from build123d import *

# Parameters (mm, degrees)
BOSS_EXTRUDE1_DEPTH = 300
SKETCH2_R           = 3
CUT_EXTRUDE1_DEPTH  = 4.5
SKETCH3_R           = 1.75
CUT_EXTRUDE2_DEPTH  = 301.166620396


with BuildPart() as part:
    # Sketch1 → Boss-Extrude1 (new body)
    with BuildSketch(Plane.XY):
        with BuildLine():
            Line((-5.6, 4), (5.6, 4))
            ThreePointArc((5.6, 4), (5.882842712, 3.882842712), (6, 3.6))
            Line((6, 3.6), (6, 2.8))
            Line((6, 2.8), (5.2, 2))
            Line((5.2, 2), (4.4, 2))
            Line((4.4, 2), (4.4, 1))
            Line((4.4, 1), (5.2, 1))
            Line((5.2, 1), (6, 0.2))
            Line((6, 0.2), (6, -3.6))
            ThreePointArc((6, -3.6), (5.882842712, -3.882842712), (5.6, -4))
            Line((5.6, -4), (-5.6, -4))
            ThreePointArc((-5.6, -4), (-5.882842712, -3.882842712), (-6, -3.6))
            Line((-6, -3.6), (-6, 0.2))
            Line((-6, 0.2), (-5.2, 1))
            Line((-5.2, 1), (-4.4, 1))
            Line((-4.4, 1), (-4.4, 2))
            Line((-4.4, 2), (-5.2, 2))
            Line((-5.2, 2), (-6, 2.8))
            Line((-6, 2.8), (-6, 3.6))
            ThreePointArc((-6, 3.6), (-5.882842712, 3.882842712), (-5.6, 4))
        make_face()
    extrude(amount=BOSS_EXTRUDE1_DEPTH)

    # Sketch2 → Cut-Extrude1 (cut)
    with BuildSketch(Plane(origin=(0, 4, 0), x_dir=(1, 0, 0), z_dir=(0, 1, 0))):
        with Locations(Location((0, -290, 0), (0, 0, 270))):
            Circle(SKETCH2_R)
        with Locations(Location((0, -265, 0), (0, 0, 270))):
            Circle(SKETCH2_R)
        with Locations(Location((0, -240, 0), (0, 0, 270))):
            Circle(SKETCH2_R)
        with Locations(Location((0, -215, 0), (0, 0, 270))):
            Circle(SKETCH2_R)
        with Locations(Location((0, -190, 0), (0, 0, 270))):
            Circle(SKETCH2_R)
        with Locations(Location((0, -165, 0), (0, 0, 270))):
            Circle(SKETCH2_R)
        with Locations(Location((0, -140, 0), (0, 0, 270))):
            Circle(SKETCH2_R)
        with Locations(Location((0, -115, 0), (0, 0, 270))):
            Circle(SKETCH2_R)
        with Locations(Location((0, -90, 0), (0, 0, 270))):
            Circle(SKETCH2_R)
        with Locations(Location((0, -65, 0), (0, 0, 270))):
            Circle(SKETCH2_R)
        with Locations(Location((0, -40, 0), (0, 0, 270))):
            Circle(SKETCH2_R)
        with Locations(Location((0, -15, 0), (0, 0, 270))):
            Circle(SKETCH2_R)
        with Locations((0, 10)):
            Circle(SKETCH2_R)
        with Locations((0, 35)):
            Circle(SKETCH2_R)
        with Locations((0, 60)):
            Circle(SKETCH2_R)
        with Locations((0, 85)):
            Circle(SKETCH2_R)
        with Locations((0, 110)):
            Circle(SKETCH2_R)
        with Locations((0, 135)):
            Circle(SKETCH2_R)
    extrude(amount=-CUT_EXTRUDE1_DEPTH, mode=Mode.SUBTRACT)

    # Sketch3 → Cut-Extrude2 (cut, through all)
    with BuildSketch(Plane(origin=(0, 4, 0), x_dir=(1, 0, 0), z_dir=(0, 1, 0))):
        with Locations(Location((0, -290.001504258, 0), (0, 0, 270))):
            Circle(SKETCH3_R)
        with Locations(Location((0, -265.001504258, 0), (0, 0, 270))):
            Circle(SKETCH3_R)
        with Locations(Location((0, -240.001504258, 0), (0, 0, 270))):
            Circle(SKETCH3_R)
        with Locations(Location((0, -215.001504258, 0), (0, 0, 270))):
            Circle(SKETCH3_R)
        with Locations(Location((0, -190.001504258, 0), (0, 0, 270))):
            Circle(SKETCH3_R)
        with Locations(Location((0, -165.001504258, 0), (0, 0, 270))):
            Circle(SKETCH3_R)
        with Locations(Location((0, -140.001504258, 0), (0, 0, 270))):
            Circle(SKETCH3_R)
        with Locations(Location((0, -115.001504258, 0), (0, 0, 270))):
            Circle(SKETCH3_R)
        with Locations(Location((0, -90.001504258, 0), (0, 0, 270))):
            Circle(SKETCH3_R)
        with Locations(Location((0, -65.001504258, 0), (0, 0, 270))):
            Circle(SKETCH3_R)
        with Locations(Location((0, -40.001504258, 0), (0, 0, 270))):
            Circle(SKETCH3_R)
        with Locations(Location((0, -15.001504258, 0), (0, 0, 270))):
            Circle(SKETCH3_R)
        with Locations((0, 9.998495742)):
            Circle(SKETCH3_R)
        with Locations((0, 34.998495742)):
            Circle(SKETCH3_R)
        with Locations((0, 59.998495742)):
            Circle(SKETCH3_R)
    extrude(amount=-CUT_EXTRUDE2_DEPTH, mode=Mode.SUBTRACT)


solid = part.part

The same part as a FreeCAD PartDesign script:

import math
import FreeCAD as App
import Part
import Sketcher
from FreeCAD import Vector
Q = App.Units.Quantity

doc = App.newDocument("Part")
body = doc.addObject("PartDesign::Body", "Body")

# Sketch on XY plane
sketch1 = doc.addObject("Sketcher::SketchObject", "Sketch")
body.addObject(sketch1)
sketch1.AttachmentSupport = (doc.XY_Plane, [""])
sketch1.MapMode = "FlatFace"
sketch1.addGeometry([
    Part.LineSegment(Vector(5.6, 4, 0), Vector(-5.6, 4, 0)),  # 0
    Part.ArcOfCircle(Part.Circle(Vector(-5.6, 3.6, 0), Vector(0, 0, 1), 0.4), math.radians(90), math.radians(180)),  # 1
    Part.LineSegment(Vector(-6, 3.6, 0), Vector(-6, 2.8, 0)),  # 2
    Part.LineSegment(Vector(-6, 2.8, 0), Vector(-5.2, 2, 0)),  # 3
    Part.LineSegment(Vector(-5.2, 2, 0), Vector(-4.4, 2, 0)),  # 4
    Part.LineSegment(Vector(-4.4, 2, 0), Vector(-4.4, 1, 0)),  # 5
    Part.LineSegment(Vector(-4.4, 1, 0), Vector(-5.2, 1, 0)),  # 6
    Part.LineSegment(Vector(-5.2, 1, 0), Vector(-6, 0.2, 0)),  # 7
    Part.LineSegment(Vector(-6, 0.2, 0), Vector(-6, -3.6, 0)),  # 8
    Part.ArcOfCircle(Part.Circle(Vector(-5.6, -3.6, 0), Vector(0, 0, 1), 0.4), math.radians(-180), math.radians(-90)),  # 9
    Part.LineSegment(Vector(-5.6, -4, 0), Vector(5.6, -4, 0)),  # 10
    Part.ArcOfCircle(Part.Circle(Vector(5.6, -3.6, 0), Vector(0, 0, 1), 0.4), math.radians(-90), math.radians(0)),  # 11
    Part.LineSegment(Vector(6, -3.6, 0), Vector(6, 0.2, 0)),  # 12
    Part.LineSegment(Vector(6, 0.2, 0), Vector(5.2, 1, 0)),  # 13
    Part.LineSegment(Vector(5.2, 1, 0), Vector(4.4, 1, 0)),  # 14
    Part.LineSegment(Vector(4.4, 1, 0), Vector(4.4, 2, 0)),  # 15
    Part.LineSegment(Vector(4.4, 2, 0), Vector(5.2, 2, 0)),  # 16
    Part.LineSegment(Vector(5.2, 2, 0), Vector(6, 2.8, 0)),  # 17
    Part.LineSegment(Vector(6, 2.8, 0), Vector(6, 3.6, 0)),  # 18
    Part.ArcOfCircle(Part.Circle(Vector(5.6, 3.6, 0), Vector(0, 0, 1), 0.4), math.radians(0), math.radians(90)),  # 19
], False)
sketch1.addConstraint([
    Sketcher.Constraint("Tangent", 0, 2, 1, 1),
    Sketcher.Constraint("Tangent", 1, 2, 2, 1),
    Sketcher.Constraint("Coincident", 2, 2, 3, 1),
    Sketcher.Constraint("Coincident", 3, 2, 4, 1),
    Sketcher.Constraint("Coincident", 4, 2, 5, 1),
    Sketcher.Constraint("Coincident", 5, 2, 6, 1),
    Sketcher.Constraint("Coincident", 6, 2, 7, 1),
    Sketcher.Constraint("Coincident", 7, 2, 8, 1),
    Sketcher.Constraint("Tangent", 8, 2, 9, 1),
    Sketcher.Constraint("Tangent", 9, 2, 10, 1),
    Sketcher.Constraint("Tangent", 10, 2, 11, 1),
    Sketcher.Constraint("Tangent", 11, 2, 12, 1),
    Sketcher.Constraint("Coincident", 12, 2, 13, 1),
    Sketcher.Constraint("Coincident", 13, 2, 14, 1),
    Sketcher.Constraint("Coincident", 14, 2, 15, 1),
    Sketcher.Constraint("Coincident", 15, 2, 16, 1),
    Sketcher.Constraint("Coincident", 16, 2, 17, 1),
    Sketcher.Constraint("Coincident", 17, 2, 18, 1),
    Sketcher.Constraint("Tangent", 18, 2, 19, 1),
    Sketcher.Constraint("Tangent", 19, 2, 0, 1),
    Sketcher.Constraint("Horizontal", 0),
    Sketcher.Constraint("Vertical", 2),
    Sketcher.Constraint("Horizontal", 4),
    Sketcher.Constraint("Vertical", 5),
    Sketcher.Constraint("Horizontal", 6),
    Sketcher.Constraint("Vertical", 8),
    Sketcher.Constraint("Horizontal", 10),
    Sketcher.Constraint("Vertical", 12),
    Sketcher.Constraint("Horizontal", 14),
    Sketcher.Constraint("Vertical", 15),
    Sketcher.Constraint("Horizontal", 16),
    Sketcher.Constraint("Vertical", 18),
    Sketcher.Constraint("Equal", 1, 9),
    Sketcher.Constraint("Equal", 9, 11),
    Sketcher.Constraint("Equal", 11, 19),
    Sketcher.Constraint("Symmetric", 1, 3, 11, 3, -1, 1),
    Sketcher.Constraint("Symmetric", 7, 2, 12, 2, -2),
    Sketcher.Constraint("Symmetric", 6, 2, 13, 2, -2),
    Sketcher.Constraint("Symmetric", 4, 2, 15, 2, -2),
    Sketcher.Constraint("Symmetric", 2, 2, 17, 2, -2),
    Sketcher.Constraint("Perpendicular", 3, 7),
    Sketcher.Constraint("Perpendicular", 7, 13),
    Sketcher.Constraint("Perpendicular", 13, 17),
    Sketcher.Constraint("Vertical", 3, 2, 6, 2),
    Sketcher.Constraint("Equal", 16, 2),
    Sketcher.Constraint("Radius", 1, Q("0.4 mm")),
    Sketcher.Constraint("DistanceY", 5, 2, 5, 1, Q("1 mm")),
    Sketcher.Constraint("DistanceX", 0, 2, 0, 1, Q("11.2 mm")),
    Sketcher.Constraint("DistanceX", 4, 1, 4, 2, Q("0.8 mm")),
    Sketcher.Constraint("DistanceY", 8, 2, 8, 1, Q("3.8 mm")),
    Sketcher.Constraint("DistanceY", -1, 1, 0, 2, Q("4 mm")),
])
pad1 = doc.addObject("PartDesign::Pad", "Pad")
body.addObject(pad1)
pad1.Profile = sketch1
pad1.Length = 300

# Sketch on XZ plane
sketch2 = doc.addObject("Sketcher::SketchObject", "Sketch001")
body.addObject(sketch2)
sketch2.AttachmentSupport = (doc.XZ_Plane, [""])
sketch2.MapMode = "FlatFace"
sketch2.AttachmentOffset = App.Placement(Vector(0, 0, -4), App.Rotation())
sketch2.addGeometry([
    Part.Circle(Vector(0, 290, 0), Vector(0, 0, 1), 3),  # 0
    Part.Circle(Vector(0, 265, 0), Vector(0, 0, 1), 3),  # 1
    Part.Circle(Vector(0, 240, 0), Vector(0, 0, 1), 3),  # 2
    Part.Circle(Vector(0, 215, 0), Vector(0, 0, 1), 3),  # 3
    Part.Circle(Vector(0, 190, 0), Vector(0, 0, 1), 3),  # 4
    Part.Circle(Vector(0, 165, 0), Vector(0, 0, 1), 3),  # 5
    Part.Circle(Vector(0, 140, 0), Vector(0, 0, 1), 3),  # 6
    Part.Circle(Vector(0, 115, 0), Vector(0, 0, 1), 3),  # 7
    Part.Circle(Vector(0, 90, 0), Vector(0, 0, 1), 3),  # 8
    Part.Circle(Vector(0, 65, 0), Vector(0, 0, 1), 3),  # 9
    Part.Circle(Vector(0, 40, 0), Vector(0, 0, 1), 3),  # 10
    Part.Circle(Vector(0, 15, 0), Vector(0, 0, 1), 3),  # 11
    Part.Circle(Vector(0, -10, 0), Vector(0, 0, 1), 3),  # 12
    Part.Circle(Vector(0, -35, 0), Vector(0, 0, 1), 3),  # 13
    Part.Circle(Vector(0, -60, 0), Vector(0, 0, 1), 3),  # 14
    Part.Circle(Vector(0, -85, 0), Vector(0, 0, 1), 3),  # 15
    Part.Circle(Vector(0, -110, 0), Vector(0, 0, 1), 3),  # 16
    Part.Circle(Vector(0, -135, 0), Vector(0, 0, 1), 3),  # 17
], False)
sketch2.addConstraint([
    Sketcher.Constraint("Equal", 0, 1),
    Sketcher.Constraint("Equal", 1, 2),
    Sketcher.Constraint("Equal", 2, 3),
    Sketcher.Constraint("Equal", 3, 4),
    Sketcher.Constraint("Equal", 4, 5),
    Sketcher.Constraint("Equal", 5, 6),
    Sketcher.Constraint("Equal", 6, 7),
    Sketcher.Constraint("Equal", 7, 8),
    Sketcher.Constraint("Equal", 8, 9),
    Sketcher.Constraint("Equal", 9, 10),
    Sketcher.Constraint("Equal", 10, 11),
    Sketcher.Constraint("Equal", 11, 12),
    Sketcher.Constraint("Equal", 12, 13),
    Sketcher.Constraint("Equal", 13, 14),
    Sketcher.Constraint("Equal", 14, 15),
    Sketcher.Constraint("Equal", 15, 16),
    Sketcher.Constraint("Equal", 16, 17),
    Sketcher.Constraint("PointOnObject", 0, 3, -2),
    Sketcher.Constraint("PointOnObject", 1, 3, -2),
    Sketcher.Constraint("PointOnObject", 2, 3, -2),
    Sketcher.Constraint("PointOnObject", 3, 3, -2),
    Sketcher.Constraint("PointOnObject", 4, 3, -2),
    Sketcher.Constraint("PointOnObject", 5, 3, -2),
    Sketcher.Constraint("PointOnObject", 6, 3, -2),
    Sketcher.Constraint("PointOnObject", 7, 3, -2),
    Sketcher.Constraint("PointOnObject", 8, 3, -2),
    Sketcher.Constraint("PointOnObject", 9, 3, -2),
    Sketcher.Constraint("PointOnObject", 10, 3, -2),
    Sketcher.Constraint("PointOnObject", 11, 3, -2),
    Sketcher.Constraint("PointOnObject", 12, 3, -2),
    Sketcher.Constraint("PointOnObject", 13, 3, -2),
    Sketcher.Constraint("PointOnObject", 14, 3, -2),
    Sketcher.Constraint("PointOnObject", 15, 3, -2),
    Sketcher.Constraint("PointOnObject", 16, 3, -2),
    Sketcher.Constraint("PointOnObject", 17, 3, -2),
    Sketcher.Constraint("Diameter", 0, Q("6 mm")),
    Sketcher.Constraint("DistanceY", -1, 1, 0, 3, Q("290 mm")),
    Sketcher.Constraint("DistanceY", -1, 1, 1, 3, Q("265 mm")),
    Sketcher.Constraint("DistanceY", -1, 1, 2, 3, Q("240 mm")),
    Sketcher.Constraint("DistanceY", -1, 1, 3, 3, Q("215 mm")),
    Sketcher.Constraint("DistanceY", -1, 1, 4, 3, Q("190 mm")),
    Sketcher.Constraint("DistanceY", -1, 1, 5, 3, Q("165 mm")),
    Sketcher.Constraint("DistanceY", -1, 1, 6, 3, Q("140 mm")),
    Sketcher.Constraint("DistanceY", -1, 1, 7, 3, Q("115 mm")),
    Sketcher.Constraint("DistanceY", -1, 1, 8, 3, Q("90 mm")),
    Sketcher.Constraint("DistanceY", -1, 1, 9, 3, Q("65 mm")),
    Sketcher.Constraint("DistanceY", -1, 1, 10, 3, Q("40 mm")),
    Sketcher.Constraint("DistanceY", -1, 1, 11, 3, Q("15 mm")),
    Sketcher.Constraint("DistanceY", 12, 3, -1, 1, Q("10 mm")),
    Sketcher.Constraint("DistanceY", 13, 3, -1, 1, Q("35 mm")),
    Sketcher.Constraint("DistanceY", 14, 3, -1, 1, Q("60 mm")),
    Sketcher.Constraint("DistanceY", 15, 3, -1, 1, Q("85 mm")),
    Sketcher.Constraint("DistanceY", 16, 3, -1, 1, Q("110 mm")),
    Sketcher.Constraint("DistanceY", 17, 3, -1, 1, Q("135 mm")),
])
pocket1 = doc.addObject("PartDesign::Pocket", "Pocket")
body.addObject(pocket1)
pocket1.Profile = sketch2
pocket1.Length = 4.5
pocket1.Reversed = True

# Sketch on XZ plane
sketch3 = doc.addObject("Sketcher::SketchObject", "Sketch002")
body.addObject(sketch3)
sketch3.AttachmentSupport = (doc.XZ_Plane, [""])
sketch3.MapMode = "FlatFace"
sketch3.AttachmentOffset = App.Placement(Vector(0, 0, -4), App.Rotation())
sketch3.addGeometry([
    Part.Circle(Vector(0, 290, 0), Vector(0, 0, 1), 1.8),  # 0
    Part.Circle(Vector(0, 265, 0), Vector(0, 0, 1), 1.8),  # 1
    Part.Circle(Vector(0, 240, 0), Vector(0, 0, 1), 1.8),  # 2
    Part.Circle(Vector(0, 215, 0), Vector(0, 0, 1), 1.8),  # 3
    Part.Circle(Vector(0, 190, 0), Vector(0, 0, 1), 1.8),  # 4
    Part.Circle(Vector(0, 165, 0), Vector(0, 0, 1), 1.8),  # 5
    Part.Circle(Vector(0, 140, 0), Vector(0, 0, 1), 1.8),  # 6
    Part.Circle(Vector(0, 115, 0), Vector(0, 0, 1), 1.8),  # 7
    Part.Circle(Vector(0, 90, 0), Vector(0, 0, 1), 1.8),  # 8
    Part.Circle(Vector(0, 65, 0), Vector(0, 0, 1), 1.8),  # 9
    Part.Circle(Vector(0, 40, 0), Vector(0, 0, 1), 1.8),  # 10
    Part.Circle(Vector(0, 15, 0), Vector(0, 0, 1), 1.8),  # 11
    Part.Circle(Vector(0, -10, 0), Vector(0, 0, 1), 1.8),  # 12
    Part.Circle(Vector(0, -35, 0), Vector(0, 0, 1), 1.8),  # 13
    Part.Circle(Vector(0, -60, 0), Vector(0, 0, 1), 1.8),  # 14
], False)
sketch3.addConstraint([
    Sketcher.Constraint("Equal", 0, 1),
    Sketcher.Constraint("Equal", 1, 2),
    Sketcher.Constraint("Equal", 2, 3),
    Sketcher.Constraint("Equal", 3, 4),
    Sketcher.Constraint("Equal", 4, 5),
    Sketcher.Constraint("Equal", 5, 6),
    Sketcher.Constraint("Equal", 6, 7),
    Sketcher.Constraint("Equal", 7, 8),
    Sketcher.Constraint("Equal", 8, 9),
    Sketcher.Constraint("Equal", 9, 10),
    Sketcher.Constraint("Equal", 10, 11),
    Sketcher.Constraint("Equal", 11, 12),
    Sketcher.Constraint("Equal", 12, 13),
    Sketcher.Constraint("Equal", 13, 14),
    Sketcher.Constraint("PointOnObject", 0, 3, -2),
    Sketcher.Constraint("PointOnObject", 1, 3, -2),
    Sketcher.Constraint("PointOnObject", 2, 3, -2),
    Sketcher.Constraint("PointOnObject", 3, 3, -2),
    Sketcher.Constraint("PointOnObject", 4, 3, -2),
    Sketcher.Constraint("PointOnObject", 5, 3, -2),
    Sketcher.Constraint("PointOnObject", 6, 3, -2),
    Sketcher.Constraint("PointOnObject", 7, 3, -2),
    Sketcher.Constraint("PointOnObject", 8, 3, -2),
    Sketcher.Constraint("PointOnObject", 9, 3, -2),
    Sketcher.Constraint("PointOnObject", 10, 3, -2),
    Sketcher.Constraint("PointOnObject", 11, 3, -2),
    Sketcher.Constraint("PointOnObject", 12, 3, -2),
    Sketcher.Constraint("PointOnObject", 13, 3, -2),
    Sketcher.Constraint("PointOnObject", 14, 3, -2),
    Sketcher.Constraint("Diameter", 0, Q("3.5 mm")),
    Sketcher.Constraint("DistanceY", 1, 3, 0, 3, Q("25 mm")),
    Sketcher.Constraint("DistanceY", 2, 3, 1, 3, Q("25 mm")),
    Sketcher.Constraint("DistanceY", 3, 3, 2, 3, Q("25 mm")),
    Sketcher.Constraint("DistanceY", 4, 3, 3, 3, Q("25 mm")),
    Sketcher.Constraint("DistanceY", 5, 3, 4, 3, Q("25 mm")),
    Sketcher.Constraint("DistanceY", 6, 3, 5, 3, Q("25 mm")),
    Sketcher.Constraint("DistanceY", 7, 3, 6, 3, Q("25 mm")),
    Sketcher.Constraint("DistanceY", 8, 3, 7, 3, Q("25 mm")),
    Sketcher.Constraint("DistanceY", 9, 3, 8, 3, Q("25 mm")),
    Sketcher.Constraint("DistanceY", 10, 3, 9, 3, Q("25 mm")),
    Sketcher.Constraint("DistanceY", 11, 3, 10, 3, Q("25 mm")),
    Sketcher.Constraint("DistanceY", 12, 3, 11, 3, Q("25 mm")),
    Sketcher.Constraint("DistanceY", 13, 3, 12, 3, Q("25 mm")),
    Sketcher.Constraint("DistanceY", 14, 3, 13, 3, Q("25 mm")),
    Sketcher.Constraint("DistanceY", -1, 1, 0, 3, Q("290.001504 mm")),
])
pocket2 = doc.addObject("PartDesign::Pocket", "Pocket001")
body.addObject(pocket2)
pocket2.Profile = sketch3
pocket2.Type = "ThroughAll"
pocket2.Reversed = True

doc.recompute()
